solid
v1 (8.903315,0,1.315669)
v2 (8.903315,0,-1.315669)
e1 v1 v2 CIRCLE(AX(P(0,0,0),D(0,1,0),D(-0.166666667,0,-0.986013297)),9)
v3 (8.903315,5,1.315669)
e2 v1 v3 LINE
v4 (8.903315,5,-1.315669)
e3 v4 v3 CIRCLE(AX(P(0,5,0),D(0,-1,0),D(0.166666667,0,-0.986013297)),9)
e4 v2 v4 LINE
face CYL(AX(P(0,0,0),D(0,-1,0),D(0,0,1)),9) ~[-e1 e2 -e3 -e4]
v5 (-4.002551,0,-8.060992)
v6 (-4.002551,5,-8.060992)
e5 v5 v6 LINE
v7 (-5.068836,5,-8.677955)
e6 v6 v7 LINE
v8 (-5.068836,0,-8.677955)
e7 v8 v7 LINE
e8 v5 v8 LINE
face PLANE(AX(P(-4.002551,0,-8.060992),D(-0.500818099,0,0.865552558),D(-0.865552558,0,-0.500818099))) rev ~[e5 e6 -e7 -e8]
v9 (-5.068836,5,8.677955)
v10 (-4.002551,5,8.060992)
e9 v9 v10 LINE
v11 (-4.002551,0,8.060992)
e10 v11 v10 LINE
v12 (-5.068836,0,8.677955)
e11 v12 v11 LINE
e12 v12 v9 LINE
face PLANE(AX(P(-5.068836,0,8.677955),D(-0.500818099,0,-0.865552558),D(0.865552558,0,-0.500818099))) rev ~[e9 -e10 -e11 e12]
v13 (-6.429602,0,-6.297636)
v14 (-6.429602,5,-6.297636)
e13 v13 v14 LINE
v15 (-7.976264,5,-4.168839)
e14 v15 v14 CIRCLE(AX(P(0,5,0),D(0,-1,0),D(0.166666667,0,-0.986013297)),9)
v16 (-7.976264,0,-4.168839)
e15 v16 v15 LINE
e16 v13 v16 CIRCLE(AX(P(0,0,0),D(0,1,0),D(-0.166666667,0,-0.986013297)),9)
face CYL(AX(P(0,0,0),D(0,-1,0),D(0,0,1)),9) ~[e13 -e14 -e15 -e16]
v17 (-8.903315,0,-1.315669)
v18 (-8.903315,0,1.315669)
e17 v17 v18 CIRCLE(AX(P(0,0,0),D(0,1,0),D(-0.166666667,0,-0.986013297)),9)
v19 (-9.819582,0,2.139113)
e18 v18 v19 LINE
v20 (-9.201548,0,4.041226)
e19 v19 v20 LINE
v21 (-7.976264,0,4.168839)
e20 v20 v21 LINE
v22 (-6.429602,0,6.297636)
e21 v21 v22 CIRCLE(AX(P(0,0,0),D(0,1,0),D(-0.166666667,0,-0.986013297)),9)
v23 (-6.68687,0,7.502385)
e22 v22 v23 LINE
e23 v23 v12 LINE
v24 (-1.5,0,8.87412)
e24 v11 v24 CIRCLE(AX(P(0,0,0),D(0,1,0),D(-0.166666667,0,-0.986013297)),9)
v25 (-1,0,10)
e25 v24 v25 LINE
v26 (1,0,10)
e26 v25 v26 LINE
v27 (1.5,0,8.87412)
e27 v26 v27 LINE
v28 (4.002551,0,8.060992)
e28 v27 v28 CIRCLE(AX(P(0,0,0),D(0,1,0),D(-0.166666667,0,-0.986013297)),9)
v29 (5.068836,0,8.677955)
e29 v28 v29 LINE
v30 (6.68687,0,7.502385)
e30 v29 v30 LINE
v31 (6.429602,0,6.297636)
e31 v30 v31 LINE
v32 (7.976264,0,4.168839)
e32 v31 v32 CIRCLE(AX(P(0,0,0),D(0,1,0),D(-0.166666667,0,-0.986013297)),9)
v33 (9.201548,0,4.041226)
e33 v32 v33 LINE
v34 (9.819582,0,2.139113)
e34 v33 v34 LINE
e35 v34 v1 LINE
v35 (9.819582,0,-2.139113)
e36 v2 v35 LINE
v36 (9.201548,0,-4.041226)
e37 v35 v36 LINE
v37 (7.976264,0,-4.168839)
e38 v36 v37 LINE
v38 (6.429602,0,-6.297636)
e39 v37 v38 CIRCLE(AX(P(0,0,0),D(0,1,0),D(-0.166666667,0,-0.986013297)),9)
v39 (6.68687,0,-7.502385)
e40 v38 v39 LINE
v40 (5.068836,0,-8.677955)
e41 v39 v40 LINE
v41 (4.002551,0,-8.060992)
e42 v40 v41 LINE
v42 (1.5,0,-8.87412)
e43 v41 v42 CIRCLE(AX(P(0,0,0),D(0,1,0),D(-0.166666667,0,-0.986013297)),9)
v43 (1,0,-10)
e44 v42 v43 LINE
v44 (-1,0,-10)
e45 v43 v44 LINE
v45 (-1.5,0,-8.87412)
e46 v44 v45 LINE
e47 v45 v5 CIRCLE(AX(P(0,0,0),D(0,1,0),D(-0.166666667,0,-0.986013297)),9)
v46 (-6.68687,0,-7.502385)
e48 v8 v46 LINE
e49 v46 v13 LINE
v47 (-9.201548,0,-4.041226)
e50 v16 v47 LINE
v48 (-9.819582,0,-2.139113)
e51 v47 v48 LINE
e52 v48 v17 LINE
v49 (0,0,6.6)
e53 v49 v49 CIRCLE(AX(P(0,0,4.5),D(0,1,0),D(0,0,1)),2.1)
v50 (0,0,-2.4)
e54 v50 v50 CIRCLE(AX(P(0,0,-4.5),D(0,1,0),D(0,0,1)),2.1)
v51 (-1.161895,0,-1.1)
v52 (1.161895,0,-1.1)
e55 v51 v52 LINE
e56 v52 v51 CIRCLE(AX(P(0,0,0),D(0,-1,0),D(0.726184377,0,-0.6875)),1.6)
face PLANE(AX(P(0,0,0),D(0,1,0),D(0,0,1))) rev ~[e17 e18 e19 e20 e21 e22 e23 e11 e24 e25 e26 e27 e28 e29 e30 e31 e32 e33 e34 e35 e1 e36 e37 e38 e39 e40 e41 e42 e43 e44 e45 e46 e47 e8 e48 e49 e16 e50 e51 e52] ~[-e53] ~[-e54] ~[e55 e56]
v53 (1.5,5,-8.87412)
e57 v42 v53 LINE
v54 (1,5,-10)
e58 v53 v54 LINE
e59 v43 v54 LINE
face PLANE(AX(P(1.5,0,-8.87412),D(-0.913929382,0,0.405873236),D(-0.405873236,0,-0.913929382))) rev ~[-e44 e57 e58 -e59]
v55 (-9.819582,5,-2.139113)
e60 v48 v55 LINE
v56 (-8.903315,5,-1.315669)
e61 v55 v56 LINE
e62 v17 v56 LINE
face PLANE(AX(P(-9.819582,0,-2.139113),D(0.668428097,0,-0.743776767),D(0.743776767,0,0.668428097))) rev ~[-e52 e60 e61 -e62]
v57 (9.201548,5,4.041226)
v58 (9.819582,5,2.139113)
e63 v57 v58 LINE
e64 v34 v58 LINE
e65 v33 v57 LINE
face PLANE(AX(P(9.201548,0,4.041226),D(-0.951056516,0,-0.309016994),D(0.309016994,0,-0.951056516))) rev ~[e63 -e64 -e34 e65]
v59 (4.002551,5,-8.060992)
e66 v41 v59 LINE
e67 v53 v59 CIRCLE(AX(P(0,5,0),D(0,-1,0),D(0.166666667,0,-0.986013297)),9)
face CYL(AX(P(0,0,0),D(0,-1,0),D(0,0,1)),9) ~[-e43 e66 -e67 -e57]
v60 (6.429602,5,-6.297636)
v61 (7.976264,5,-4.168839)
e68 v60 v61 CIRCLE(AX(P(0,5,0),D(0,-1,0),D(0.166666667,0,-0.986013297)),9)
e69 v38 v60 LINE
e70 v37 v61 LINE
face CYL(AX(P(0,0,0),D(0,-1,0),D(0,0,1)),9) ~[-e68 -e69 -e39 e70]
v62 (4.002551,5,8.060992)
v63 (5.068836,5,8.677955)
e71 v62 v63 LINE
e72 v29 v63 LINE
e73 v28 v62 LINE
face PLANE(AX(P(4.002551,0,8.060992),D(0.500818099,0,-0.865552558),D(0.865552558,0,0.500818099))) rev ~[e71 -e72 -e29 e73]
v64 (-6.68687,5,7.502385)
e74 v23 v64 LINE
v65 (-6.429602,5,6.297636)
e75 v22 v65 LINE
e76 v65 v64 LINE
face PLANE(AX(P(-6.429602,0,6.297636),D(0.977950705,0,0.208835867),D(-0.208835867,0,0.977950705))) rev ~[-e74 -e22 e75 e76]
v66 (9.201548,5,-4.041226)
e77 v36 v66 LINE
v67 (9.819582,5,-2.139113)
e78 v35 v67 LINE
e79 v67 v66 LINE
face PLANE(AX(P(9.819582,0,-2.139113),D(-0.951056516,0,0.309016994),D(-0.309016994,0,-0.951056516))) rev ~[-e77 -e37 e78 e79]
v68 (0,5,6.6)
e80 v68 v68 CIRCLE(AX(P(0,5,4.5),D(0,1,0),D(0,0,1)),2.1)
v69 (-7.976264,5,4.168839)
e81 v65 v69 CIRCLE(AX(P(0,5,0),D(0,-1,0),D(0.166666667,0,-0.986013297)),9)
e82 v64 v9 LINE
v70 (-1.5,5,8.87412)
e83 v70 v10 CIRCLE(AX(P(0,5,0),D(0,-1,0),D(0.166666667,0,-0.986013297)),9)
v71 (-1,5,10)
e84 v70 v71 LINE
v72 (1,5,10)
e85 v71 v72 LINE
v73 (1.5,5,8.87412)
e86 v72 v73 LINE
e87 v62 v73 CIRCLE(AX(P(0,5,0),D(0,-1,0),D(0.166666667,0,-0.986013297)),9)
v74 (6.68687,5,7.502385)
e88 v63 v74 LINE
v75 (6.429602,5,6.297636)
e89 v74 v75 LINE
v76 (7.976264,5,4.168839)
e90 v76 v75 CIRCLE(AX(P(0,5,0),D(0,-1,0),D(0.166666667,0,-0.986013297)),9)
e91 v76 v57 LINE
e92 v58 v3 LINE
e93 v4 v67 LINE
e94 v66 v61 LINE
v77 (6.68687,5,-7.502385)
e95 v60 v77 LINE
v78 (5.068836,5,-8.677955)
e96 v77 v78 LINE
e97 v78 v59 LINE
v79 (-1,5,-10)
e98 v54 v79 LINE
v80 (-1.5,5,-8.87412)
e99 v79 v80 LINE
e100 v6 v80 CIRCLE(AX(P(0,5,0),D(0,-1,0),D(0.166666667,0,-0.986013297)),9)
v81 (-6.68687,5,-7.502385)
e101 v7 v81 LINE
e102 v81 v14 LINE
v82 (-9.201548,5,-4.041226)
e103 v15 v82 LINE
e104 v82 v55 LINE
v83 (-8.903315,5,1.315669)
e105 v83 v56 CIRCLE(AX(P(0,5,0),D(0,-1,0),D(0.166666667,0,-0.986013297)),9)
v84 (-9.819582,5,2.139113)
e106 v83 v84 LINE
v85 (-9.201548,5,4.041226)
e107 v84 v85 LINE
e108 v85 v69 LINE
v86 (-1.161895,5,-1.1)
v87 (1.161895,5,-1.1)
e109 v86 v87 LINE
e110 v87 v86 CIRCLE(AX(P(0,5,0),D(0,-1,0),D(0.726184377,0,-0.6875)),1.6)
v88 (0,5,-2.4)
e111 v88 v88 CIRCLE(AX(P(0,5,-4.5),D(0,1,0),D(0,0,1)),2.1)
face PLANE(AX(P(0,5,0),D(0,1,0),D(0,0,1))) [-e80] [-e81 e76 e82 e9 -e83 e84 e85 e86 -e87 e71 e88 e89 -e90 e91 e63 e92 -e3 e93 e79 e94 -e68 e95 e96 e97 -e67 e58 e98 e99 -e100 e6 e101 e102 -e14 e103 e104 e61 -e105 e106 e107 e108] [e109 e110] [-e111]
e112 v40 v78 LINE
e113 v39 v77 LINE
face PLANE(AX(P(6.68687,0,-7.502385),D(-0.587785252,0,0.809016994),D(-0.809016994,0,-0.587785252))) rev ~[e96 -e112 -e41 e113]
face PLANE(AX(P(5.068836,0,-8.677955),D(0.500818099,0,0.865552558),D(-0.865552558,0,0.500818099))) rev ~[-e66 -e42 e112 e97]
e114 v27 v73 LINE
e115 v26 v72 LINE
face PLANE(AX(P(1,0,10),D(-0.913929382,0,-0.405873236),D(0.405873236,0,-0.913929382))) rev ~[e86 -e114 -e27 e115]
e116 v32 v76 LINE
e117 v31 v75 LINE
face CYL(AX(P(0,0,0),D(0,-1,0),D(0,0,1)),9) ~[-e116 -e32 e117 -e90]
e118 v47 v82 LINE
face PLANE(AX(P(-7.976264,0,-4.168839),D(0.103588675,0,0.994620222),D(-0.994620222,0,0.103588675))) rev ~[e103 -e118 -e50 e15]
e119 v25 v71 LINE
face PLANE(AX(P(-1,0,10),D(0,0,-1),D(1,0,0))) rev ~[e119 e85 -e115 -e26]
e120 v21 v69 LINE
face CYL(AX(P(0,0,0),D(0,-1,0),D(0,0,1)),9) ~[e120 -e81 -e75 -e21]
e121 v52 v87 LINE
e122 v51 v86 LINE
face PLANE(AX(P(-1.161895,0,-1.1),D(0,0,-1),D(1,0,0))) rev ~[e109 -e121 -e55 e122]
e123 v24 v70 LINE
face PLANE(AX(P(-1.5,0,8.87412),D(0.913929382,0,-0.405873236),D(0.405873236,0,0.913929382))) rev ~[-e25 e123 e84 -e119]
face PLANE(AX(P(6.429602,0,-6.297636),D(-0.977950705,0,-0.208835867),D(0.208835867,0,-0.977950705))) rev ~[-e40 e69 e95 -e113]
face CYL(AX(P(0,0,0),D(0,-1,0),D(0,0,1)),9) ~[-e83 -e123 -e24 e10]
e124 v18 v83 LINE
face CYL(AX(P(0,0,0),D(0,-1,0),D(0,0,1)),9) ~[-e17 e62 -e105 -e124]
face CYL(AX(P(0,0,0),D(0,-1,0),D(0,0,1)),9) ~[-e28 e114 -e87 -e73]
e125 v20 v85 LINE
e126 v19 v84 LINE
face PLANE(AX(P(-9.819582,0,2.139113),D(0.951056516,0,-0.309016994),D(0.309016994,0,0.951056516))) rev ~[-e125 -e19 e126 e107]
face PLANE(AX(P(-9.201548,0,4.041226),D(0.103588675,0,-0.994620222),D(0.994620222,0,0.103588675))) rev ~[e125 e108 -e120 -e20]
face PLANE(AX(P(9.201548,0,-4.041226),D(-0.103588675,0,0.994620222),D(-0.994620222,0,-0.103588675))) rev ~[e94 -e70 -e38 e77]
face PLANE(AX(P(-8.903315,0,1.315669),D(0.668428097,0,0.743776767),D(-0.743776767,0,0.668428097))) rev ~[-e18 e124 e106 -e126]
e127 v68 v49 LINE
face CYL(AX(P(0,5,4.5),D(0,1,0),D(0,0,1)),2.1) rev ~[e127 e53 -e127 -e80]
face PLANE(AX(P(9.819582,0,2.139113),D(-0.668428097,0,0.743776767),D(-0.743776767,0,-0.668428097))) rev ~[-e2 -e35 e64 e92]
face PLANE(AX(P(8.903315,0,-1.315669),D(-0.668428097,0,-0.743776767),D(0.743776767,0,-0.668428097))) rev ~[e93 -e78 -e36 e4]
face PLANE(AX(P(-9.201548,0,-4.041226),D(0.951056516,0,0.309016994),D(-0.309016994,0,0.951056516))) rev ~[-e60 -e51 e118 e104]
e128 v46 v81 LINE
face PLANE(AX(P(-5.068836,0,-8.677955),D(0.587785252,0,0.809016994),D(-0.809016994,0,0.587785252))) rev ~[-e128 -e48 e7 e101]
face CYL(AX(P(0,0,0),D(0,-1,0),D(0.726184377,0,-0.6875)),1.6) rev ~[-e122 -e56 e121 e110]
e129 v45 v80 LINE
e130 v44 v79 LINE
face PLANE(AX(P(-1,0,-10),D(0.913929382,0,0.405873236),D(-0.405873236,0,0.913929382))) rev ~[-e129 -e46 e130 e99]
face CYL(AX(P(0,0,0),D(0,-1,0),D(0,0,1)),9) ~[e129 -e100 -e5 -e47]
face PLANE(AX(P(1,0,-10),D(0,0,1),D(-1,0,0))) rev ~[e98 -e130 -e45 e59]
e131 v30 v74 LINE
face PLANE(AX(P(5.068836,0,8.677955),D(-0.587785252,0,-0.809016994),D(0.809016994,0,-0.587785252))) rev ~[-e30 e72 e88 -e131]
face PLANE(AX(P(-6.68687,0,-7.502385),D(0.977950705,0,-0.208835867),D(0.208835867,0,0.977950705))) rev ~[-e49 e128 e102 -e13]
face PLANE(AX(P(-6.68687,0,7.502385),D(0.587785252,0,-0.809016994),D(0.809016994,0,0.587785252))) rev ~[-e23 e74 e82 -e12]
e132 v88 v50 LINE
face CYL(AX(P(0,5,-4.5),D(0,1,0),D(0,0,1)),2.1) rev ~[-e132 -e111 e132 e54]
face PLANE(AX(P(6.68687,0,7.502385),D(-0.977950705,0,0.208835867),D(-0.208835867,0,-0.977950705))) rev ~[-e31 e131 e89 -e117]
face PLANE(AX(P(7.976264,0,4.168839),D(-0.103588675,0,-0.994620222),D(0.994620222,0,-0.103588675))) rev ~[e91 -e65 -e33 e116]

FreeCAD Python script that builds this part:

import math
import FreeCAD as App
import Part
import Sketcher
from FreeCAD import Vector
Q = App.Units.Quantity

doc = App.newDocument("Part")
body = doc.addObject("PartDesign::Body", "Body")

# Sketch on XZ plane
sketch1 = doc.addObject("Sketcher::SketchObject", "Sketch")
body.addObject(sketch1)
sketch1.AttachmentSupport = (doc.XZ_Plane, [""])
sketch1.MapMode = "FlatFace"
sketch1.addGeometry([
    Part.Circle(Vector(0, 0, 0), Vector(0, 0, 1), 9),
    Part.ArcOfCircle(Part.Circle(Vector(0, 0, 0), Vector(0, 0, 1), 1.6), math.radians(-43.432537), math.radians(223.432537)),
    Part.LineSegment(Vector(-1.161895, -1.1, 0), Vector(1.161895, -1.1, 0)),
], False)
sketch1.addConstraint([
    Sketcher.Constraint("Coincident", 1, 1, 2, 2),
    Sketcher.Constraint("Coincident", 2, 1, 1, 2),
    Sketcher.Constraint("Horizontal", 2),
    Sketcher.Constraint("Coincident", 0, 3, -1, 1),
    Sketcher.Constraint("Coincident", 1, 3, -1, 1),
    Sketcher.Constraint("Diameter", 0, Q("18 mm")),
    Sketcher.Constraint("Radius", 1, Q("1.6 mm")),
    Sketcher.Constraint("DistanceY", 1, 1, -1, 1, Q("1.1 mm")),
])
pad1 = doc.addObject("PartDesign::Pad", "Pad")
body.addObject(pad1)
pad1.Profile = sketch1
pad1.Length = 5
pad1.Reversed = True

# Sketch on XZ plane
sketch2 = doc.addObject("Sketcher::SketchObject", "Sketch001")
body.addObject(sketch2)
sketch2.AttachmentSupport = (doc.XZ_Plane, [""])
sketch2.MapMode = "FlatFace"
sketch2.addGeometry([
    Part.LineSegment(Vector(1.5, -8.87412, 0), Vector(1, -10, 0)),
    Part.LineSegment(Vector(1, -10, 0), Vector(-1, -10, 0)),
    Part.LineSegment(Vector(-1, -10, 0), Vector(-1.5, -8.87412, 0)),
    Part.ArcOfCircle(Part.Circle(Vector(0, 0, 0), Vector(0, 0, 1), 9), math.radians(-99.594068), math.radians(-80.405932)),
], False)
sketch2.addConstraint([
    Sketcher.Constraint("Coincident", 0, 2, 1, 1),
    Sketcher.Constraint("Coincident", 1, 2, 2, 1),
    Sketcher.Constraint("Coincident", 2, 2, 3, 1),
    Sketcher.Constraint("Coincident", 3, 2, 0, 1),
    Sketcher.Constraint("Horizontal", 1),
    Sketcher.Constraint("Coincident", 3, 3, -1, 1),
    Sketcher.Constraint("Horizontal", 2, 2, 3, 2),
    Sketcher.Constraint("Equal", 0, 2),
    Sketcher.Constraint("Radius", 3, Q("9 mm")),
    Sketcher.Constraint("DistanceX", 1, 2, 1, 1, Q("2 mm")),
    Sketcher.Constraint("DistanceY", 0, 2, -1, 1, Q("10 mm")),
    Sketcher.Constraint("DistanceX", 2, 2, 3, 2, Q("3 mm")),
])
pad2 = doc.addObject("PartDesign::Pad", "Pad001")
body.addObject(pad2)
pad2.Profile = sketch2
pad2.Length = 5
pad2.Reversed = True
doc.recompute()

polarpattern = doc.addObject("PartDesign::PolarPattern", "PolarPattern")
body.addObject(polarpattern)
polarpattern.Originals = [pad2]
polarpattern.Axis = (doc.Y_Axis, [""])
polarpattern.Angle = 360
polarpattern.Occurrences = 10
body.Tip = polarpattern

# Sketch on XZ plane
sketch3 = doc.addObject("Sketcher::SketchObject", "Sketch002")
body.addObject(sketch3)
sketch3.AttachmentSupport = (doc.XZ_Plane, [""])
sketch3.MapMode = "FlatFace"
sketch3.AttachmentOffset = App.Placement(Vector(0, 0, -5), App.Rotation())
sketch3.addGeometry(Part.Circle(Vector(0, -4.5, 0), Vector(0, 0, 1), 2.1), False)
sketch3.addConstraint([
    Sketcher.Constraint("PointOnObject", 0, 3, -2),
    Sketcher.Constraint("Diameter", 0, Q("4.2 mm")),
    Sketcher.Constraint("DistanceY", 0, 3, -1, 1, Q("4.5 mm")),
])
pocket1 = doc.addObject("PartDesign::Pocket", "Pocket")
body.addObject(pocket1)
pocket1.Profile = sketch3
pocket1.Type = "UpToFirst"
pocket1.Reversed = True

# Sketch on XZ plane
sketch4 = doc.addObject("Sketcher::SketchObject", "Sketch003")
body.addObject(sketch4)
sketch4.AttachmentSupport = (doc.XZ_Plane, [""])
sketch4.MapMode = "FlatFace"
sketch4.AttachmentOffset = App.Placement(Vector(0, 0, -5), App.Rotation())
sketch4.addGeometry(Part.Circle(Vector(0, 4.5, 0), Vector(0, 0, 1), 2.1), False)
sketch4.addConstraint([
    Sketcher.Constraint("PointOnObject", 0, 3, -2),
    Sketcher.Constraint("Diameter", 0, Q("4.2 mm")),
    Sketcher.Constraint("DistanceY", -1, 1, 0, 3, Q("4.5 mm")),
])
pocket2 = doc.addObject("PartDesign::Pocket", "Pocket001")
body.addObject(pocket2)
pocket2.Profile = sketch4
pocket2.Type = "UpToFirst"
pocket2.Reversed = True

doc.recompute()
